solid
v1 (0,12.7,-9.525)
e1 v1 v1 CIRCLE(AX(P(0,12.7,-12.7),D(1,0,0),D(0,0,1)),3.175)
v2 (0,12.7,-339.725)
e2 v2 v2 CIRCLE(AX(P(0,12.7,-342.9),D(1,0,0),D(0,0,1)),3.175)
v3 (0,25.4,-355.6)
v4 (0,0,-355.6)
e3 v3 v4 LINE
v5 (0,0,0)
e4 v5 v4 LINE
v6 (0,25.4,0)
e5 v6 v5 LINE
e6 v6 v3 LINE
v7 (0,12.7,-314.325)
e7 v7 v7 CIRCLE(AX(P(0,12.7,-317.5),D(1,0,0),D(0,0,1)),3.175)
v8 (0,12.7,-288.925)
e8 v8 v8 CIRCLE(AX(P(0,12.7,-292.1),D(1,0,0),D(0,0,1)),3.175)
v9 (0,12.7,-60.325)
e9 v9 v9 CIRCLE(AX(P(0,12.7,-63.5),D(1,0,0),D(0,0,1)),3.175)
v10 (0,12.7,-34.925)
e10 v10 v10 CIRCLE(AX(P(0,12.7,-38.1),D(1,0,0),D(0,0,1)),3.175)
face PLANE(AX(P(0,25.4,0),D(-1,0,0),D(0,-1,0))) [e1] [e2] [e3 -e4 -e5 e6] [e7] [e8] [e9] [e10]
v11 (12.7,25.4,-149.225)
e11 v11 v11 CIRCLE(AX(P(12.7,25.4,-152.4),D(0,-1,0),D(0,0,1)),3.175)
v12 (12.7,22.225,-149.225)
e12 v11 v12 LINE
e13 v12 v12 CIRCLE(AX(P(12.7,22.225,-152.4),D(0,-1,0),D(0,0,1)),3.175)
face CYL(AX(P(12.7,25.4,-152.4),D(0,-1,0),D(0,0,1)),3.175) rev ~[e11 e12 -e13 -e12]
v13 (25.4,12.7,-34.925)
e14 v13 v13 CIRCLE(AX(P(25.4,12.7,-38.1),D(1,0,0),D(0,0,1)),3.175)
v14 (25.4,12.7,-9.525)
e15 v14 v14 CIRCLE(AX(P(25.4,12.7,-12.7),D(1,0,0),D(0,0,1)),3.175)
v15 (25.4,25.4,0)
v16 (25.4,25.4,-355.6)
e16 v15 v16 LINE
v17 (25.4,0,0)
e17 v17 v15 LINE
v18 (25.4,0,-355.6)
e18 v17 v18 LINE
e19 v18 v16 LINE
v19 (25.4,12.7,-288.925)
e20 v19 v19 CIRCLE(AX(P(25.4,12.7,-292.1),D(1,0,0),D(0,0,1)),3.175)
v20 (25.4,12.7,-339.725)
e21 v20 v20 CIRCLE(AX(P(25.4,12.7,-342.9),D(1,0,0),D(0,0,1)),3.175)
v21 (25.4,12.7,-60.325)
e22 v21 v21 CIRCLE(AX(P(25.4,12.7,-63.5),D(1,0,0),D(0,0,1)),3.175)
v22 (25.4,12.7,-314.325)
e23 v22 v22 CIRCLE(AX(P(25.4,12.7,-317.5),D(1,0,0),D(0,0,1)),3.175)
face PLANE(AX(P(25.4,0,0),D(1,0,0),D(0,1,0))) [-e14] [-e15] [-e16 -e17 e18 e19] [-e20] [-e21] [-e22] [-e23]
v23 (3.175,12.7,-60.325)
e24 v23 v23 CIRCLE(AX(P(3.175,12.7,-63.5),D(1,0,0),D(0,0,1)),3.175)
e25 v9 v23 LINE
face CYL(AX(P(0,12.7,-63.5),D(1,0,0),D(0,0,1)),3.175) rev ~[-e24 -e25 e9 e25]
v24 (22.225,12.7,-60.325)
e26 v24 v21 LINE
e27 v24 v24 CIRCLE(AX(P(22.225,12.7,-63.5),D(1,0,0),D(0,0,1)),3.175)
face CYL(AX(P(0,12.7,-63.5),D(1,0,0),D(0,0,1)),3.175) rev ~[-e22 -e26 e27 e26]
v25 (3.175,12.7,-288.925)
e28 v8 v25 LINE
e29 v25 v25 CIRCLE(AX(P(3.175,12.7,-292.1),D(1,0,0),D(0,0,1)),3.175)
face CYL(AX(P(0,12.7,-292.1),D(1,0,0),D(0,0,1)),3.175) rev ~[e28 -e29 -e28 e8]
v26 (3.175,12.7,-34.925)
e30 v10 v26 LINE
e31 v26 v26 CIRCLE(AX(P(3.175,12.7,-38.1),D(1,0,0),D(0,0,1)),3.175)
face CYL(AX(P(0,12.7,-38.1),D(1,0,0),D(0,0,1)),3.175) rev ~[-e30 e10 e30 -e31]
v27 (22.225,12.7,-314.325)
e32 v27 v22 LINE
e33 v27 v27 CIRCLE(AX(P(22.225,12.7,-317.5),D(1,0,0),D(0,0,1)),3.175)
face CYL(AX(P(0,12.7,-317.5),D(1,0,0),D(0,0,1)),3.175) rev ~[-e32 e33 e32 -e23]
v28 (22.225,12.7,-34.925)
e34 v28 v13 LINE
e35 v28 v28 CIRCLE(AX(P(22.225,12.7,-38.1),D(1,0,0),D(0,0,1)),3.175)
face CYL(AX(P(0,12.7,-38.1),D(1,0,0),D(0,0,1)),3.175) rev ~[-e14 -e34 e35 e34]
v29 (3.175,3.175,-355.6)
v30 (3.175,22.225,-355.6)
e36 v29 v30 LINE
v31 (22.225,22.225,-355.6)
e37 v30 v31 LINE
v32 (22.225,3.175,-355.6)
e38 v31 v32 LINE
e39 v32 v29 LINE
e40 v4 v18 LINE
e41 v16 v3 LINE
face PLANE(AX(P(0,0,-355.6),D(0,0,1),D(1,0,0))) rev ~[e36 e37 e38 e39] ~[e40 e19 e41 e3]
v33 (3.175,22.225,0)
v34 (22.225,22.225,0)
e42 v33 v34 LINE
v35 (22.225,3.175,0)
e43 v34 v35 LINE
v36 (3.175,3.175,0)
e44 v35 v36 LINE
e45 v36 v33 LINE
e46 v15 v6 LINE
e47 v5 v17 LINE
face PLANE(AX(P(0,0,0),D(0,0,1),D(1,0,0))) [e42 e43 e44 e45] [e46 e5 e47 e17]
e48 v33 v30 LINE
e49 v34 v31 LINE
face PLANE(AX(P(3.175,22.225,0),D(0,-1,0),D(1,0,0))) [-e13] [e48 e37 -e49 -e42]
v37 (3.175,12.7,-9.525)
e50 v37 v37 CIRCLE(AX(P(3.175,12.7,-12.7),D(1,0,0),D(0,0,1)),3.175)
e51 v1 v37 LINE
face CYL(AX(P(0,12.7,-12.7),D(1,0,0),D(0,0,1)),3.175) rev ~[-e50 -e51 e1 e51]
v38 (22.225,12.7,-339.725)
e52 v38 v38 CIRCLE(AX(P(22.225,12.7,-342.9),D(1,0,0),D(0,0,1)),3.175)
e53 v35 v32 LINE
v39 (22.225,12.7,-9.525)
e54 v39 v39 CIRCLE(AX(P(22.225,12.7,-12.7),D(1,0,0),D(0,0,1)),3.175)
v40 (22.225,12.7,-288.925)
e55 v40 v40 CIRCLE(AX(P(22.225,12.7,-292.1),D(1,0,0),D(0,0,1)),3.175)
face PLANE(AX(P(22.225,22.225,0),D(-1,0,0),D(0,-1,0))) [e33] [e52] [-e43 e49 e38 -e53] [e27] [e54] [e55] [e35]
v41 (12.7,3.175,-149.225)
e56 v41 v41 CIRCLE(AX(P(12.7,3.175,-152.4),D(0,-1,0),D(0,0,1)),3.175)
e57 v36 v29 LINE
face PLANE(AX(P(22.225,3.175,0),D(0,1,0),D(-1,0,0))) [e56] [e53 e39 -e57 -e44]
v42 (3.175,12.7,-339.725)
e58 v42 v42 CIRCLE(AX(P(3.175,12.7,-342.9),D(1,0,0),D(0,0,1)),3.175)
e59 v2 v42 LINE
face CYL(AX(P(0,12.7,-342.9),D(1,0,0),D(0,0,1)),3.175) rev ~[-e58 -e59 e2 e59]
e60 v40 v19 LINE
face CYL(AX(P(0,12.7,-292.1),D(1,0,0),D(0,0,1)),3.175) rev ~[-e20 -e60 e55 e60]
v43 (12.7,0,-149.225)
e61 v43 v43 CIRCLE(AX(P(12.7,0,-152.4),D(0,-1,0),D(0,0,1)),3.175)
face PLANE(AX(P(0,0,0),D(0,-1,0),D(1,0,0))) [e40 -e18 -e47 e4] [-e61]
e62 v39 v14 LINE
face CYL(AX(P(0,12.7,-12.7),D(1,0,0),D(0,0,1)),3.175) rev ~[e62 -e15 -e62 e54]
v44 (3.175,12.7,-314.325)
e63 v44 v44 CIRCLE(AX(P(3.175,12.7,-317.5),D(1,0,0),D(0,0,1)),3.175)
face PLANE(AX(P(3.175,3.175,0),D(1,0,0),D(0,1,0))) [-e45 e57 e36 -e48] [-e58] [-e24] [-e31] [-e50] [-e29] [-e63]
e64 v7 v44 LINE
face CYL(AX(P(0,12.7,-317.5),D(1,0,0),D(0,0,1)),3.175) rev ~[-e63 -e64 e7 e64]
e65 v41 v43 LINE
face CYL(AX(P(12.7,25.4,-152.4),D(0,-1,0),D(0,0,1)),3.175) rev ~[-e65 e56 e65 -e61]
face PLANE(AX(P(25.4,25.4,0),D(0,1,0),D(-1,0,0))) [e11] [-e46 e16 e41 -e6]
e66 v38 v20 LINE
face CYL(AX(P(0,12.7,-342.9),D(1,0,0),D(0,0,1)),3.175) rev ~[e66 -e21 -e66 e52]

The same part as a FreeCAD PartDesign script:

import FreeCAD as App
import Part
import Sketcher
from FreeCAD import Vector
Q = App.Units.Quantity

doc = App.newDocument("Part")
body = doc.addObject("PartDesign::Body", "Body")

# Sketch on XY plane
sketch1 = body.newObject("Sketcher::SketchObject", "Sketch")
sketch1.AttachmentSupport = (doc.getObject("XY_Plane"), [""])
sketch1.MapMode = "FlatFace"
sketch1.addGeometry([
    Part.LineSegment(Vector(0, 25.4, 0), Vector(0, 0, 0)),  # 0
    Part.LineSegment(Vector(0, 0, 0), Vector(25.4, 0, 0)),  # 1
    Part.LineSegment(Vector(25.4, 0, 0), Vector(25.4, 25.4, 0)),  # 2
    Part.LineSegment(Vector(25.4, 25.4, 0), Vector(0, 25.4, 0)),  # 3
    Part.LineSegment(Vector(3.175, 3.175, 0), Vector(3.175, 22.225, 0)),  # 4
    Part.LineSegment(Vector(3.175, 22.225, 0), Vector(22.225, 22.225, 0)),  # 5
    Part.LineSegment(Vector(22.225, 22.225, 0), Vector(22.225, 3.175, 0)),  # 6
    Part.LineSegment(Vector(22.225, 3.175, 0), Vector(3.175, 3.175, 0)),  # 7
], False)
sketch1.addConstraint([
    Sketcher.Constraint("Coincident", 0, 2, 1, 1),
    Sketcher.Constraint("Coincident", 1, 2, 2, 1),
    Sketcher.Constraint("Coincident", 2, 2, 3, 1),
    Sketcher.Constraint("Coincident", 3, 2, 0, 1),
    Sketcher.Constraint("Coincident", 4, 2, 5, 1),
    Sketcher.Constraint("Coincident", 5, 2, 6, 1),
    Sketcher.Constraint("Coincident", 6, 2, 7, 1),
    Sketcher.Constraint("Coincident", 7, 2, 4, 1),
    Sketcher.Constraint("Vertical", 0),
    Sketcher.Constraint("Horizontal", 1),
    Sketcher.Constraint("Vertical", 2),
    Sketcher.Constraint("Horizontal", 3),
    Sketcher.Constraint("Vertical", 4),
    Sketcher.Constraint("Horizontal", 5),
    Sketcher.Constraint("Vertical", 6),
    Sketcher.Constraint("Horizontal", 7),
    Sketcher.Constraint("Coincident", 0, 2, -1, 1),
    Sketcher.Constraint("Equal", 3, 0),
    Sketcher.Constraint("Equal", 7, 4),
    Sketcher.Constraint("DistanceX", 1, 1, 1, 2, Q("1 in")),
    Sketcher.Constraint("DistanceX", -1, 1, 4, 2, Q("0.125 in")),
    Sketcher.Constraint("DistanceY", -1, 1, 6, 2, Q("0.125 in")),
    Sketcher.Constraint("DistanceY", 4, 2, 3, 2, Q("0.125 in")),
])
pad1 = body.newObject("PartDesign::Pad", "Pad")
pad1.Profile = sketch1
pad1.Length = Q("14 in")
pad1.Reversed = True

# Sketch on YZ plane
sketch2 = body.newObject("Sketcher::SketchObject", "Sketch001")
sketch2.AttachmentSupport = (doc.getObject("YZ_Plane"), [""])
sketch2.MapMode = "FlatFace"
sketch2.addGeometry([
    Part.Circle(Vector(12.7, -317.5, 0), Vector(0, 0, 1), 3.175),  # 0
    Part.Circle(Vector(12.7, -292.1, 0), Vector(0, 0, 1), 3.175),  # 1
    Part.Circle(Vector(12.7, -38.1, 0), Vector(0, 0, 1), 3.175),  # 2
    Part.Circle(Vector(12.7, -12.7, 0), Vector(0, 0, 1), 3.175),  # 3
    Part.Circle(Vector(12.7, -63.5, 0), Vector(0, 0, 1), 3.175),  # 4
    Part.Circle(Vector(12.7, -342.9, 0), Vector(0, 0, 1), 3.175),  # 5
], False)
sketch2.addConstraint([
    Sketcher.Constraint("Equal", 0, 1),
    Sketcher.Constraint("Equal", 1, 2),
    Sketcher.Constraint("Equal", 2, 3),
    Sketcher.Constraint("Equal", 3, 4),
    Sketcher.Constraint("Equal", 4, 5),
    Sketcher.Constraint("Vertical", 0, 3, 1, 3),
    Sketcher.Constraint("Vertical", 1, 3, 2, 3),
    Sketcher.Constraint("Vertical", 2, 3, 3, 3),
    Sketcher.Constraint("Vertical", 3, 3, 4, 3),
    Sketcher.Constraint("Vertical", 4, 3, 5, 3),
    Sketcher.Constraint("Diameter", 0, Q("0.25 in")),
    Sketcher.Constraint("DistanceY", 0, 3, 1, 3, Q("1 in")),
    Sketcher.Constraint("DistanceY", 1, 3, 2, 3, Q("10 in")),
    Sketcher.Constraint("DistanceY", 2, 3, 3, 3, Q("1 in")),
    Sketcher.Constraint("DistanceY", 4, 3, 2, 3, Q("1 in")),
    Sketcher.Constraint("DistanceY", 5, 3, 0, 3, Q("1 in")),
    Sketcher.Constraint("DistanceX", -1, 1, 0, 3, Q("0.5 in")),
    Sketcher.Constraint("DistanceY", 0, 3, -1, 1, Q("12.5 in")),
])
doc.recompute()
hole = body.newObject("PartDesign::Hole", "Hole")
hole.Profile = sketch2
hole.ThreadType = "None"
hole.Diameter = Q("0.25 in")
hole.DepthType = "Dimension"
hole.Depth = Q("1 in")
hole.DrillPoint = "Angled"
hole.DrillPointAngle = 118
hole.Reversed = True

# Sketch on XZ plane
sketch3 = body.newObject("Sketcher::SketchObject", "Sketch002")
sketch3.AttachmentSupport = (doc.getObject("XZ_Plane"), [""])
sketch3.MapMode = "FlatFace"
sketch3.AttachmentOffset = App.Placement(Vector(0, 0, -1 * 25.4), App.Rotation())
sketch3.addGeometry(Part.Circle(Vector(12.7, -152.4, 0), Vector(0, 0, 1), 3.175), False)
sketch3.addConstraint([
    Sketcher.Constraint("Diameter", 0, Q("0.25 in")),
    Sketcher.Constraint("DistanceY", 0, 3, -1, 1, Q("6 in")),
    Sketcher.Constraint("DistanceX", -1, 1, 0, 3, Q("0.5 in")),
])
doc.recompute()
hole2 = body.newObject("PartDesign::Hole", "Hole001")
hole2.Profile = sketch3
hole2.ThreadType = "None"
hole2.Diameter = Q("0.25 in")
hole2.DepthType = "Dimension"
hole2.Depth = Q("1 in")
hole2.DrillPoint = "Angled"
hole2.DrillPointAngle = 118
hole2.Reversed = True

doc.recompute()
